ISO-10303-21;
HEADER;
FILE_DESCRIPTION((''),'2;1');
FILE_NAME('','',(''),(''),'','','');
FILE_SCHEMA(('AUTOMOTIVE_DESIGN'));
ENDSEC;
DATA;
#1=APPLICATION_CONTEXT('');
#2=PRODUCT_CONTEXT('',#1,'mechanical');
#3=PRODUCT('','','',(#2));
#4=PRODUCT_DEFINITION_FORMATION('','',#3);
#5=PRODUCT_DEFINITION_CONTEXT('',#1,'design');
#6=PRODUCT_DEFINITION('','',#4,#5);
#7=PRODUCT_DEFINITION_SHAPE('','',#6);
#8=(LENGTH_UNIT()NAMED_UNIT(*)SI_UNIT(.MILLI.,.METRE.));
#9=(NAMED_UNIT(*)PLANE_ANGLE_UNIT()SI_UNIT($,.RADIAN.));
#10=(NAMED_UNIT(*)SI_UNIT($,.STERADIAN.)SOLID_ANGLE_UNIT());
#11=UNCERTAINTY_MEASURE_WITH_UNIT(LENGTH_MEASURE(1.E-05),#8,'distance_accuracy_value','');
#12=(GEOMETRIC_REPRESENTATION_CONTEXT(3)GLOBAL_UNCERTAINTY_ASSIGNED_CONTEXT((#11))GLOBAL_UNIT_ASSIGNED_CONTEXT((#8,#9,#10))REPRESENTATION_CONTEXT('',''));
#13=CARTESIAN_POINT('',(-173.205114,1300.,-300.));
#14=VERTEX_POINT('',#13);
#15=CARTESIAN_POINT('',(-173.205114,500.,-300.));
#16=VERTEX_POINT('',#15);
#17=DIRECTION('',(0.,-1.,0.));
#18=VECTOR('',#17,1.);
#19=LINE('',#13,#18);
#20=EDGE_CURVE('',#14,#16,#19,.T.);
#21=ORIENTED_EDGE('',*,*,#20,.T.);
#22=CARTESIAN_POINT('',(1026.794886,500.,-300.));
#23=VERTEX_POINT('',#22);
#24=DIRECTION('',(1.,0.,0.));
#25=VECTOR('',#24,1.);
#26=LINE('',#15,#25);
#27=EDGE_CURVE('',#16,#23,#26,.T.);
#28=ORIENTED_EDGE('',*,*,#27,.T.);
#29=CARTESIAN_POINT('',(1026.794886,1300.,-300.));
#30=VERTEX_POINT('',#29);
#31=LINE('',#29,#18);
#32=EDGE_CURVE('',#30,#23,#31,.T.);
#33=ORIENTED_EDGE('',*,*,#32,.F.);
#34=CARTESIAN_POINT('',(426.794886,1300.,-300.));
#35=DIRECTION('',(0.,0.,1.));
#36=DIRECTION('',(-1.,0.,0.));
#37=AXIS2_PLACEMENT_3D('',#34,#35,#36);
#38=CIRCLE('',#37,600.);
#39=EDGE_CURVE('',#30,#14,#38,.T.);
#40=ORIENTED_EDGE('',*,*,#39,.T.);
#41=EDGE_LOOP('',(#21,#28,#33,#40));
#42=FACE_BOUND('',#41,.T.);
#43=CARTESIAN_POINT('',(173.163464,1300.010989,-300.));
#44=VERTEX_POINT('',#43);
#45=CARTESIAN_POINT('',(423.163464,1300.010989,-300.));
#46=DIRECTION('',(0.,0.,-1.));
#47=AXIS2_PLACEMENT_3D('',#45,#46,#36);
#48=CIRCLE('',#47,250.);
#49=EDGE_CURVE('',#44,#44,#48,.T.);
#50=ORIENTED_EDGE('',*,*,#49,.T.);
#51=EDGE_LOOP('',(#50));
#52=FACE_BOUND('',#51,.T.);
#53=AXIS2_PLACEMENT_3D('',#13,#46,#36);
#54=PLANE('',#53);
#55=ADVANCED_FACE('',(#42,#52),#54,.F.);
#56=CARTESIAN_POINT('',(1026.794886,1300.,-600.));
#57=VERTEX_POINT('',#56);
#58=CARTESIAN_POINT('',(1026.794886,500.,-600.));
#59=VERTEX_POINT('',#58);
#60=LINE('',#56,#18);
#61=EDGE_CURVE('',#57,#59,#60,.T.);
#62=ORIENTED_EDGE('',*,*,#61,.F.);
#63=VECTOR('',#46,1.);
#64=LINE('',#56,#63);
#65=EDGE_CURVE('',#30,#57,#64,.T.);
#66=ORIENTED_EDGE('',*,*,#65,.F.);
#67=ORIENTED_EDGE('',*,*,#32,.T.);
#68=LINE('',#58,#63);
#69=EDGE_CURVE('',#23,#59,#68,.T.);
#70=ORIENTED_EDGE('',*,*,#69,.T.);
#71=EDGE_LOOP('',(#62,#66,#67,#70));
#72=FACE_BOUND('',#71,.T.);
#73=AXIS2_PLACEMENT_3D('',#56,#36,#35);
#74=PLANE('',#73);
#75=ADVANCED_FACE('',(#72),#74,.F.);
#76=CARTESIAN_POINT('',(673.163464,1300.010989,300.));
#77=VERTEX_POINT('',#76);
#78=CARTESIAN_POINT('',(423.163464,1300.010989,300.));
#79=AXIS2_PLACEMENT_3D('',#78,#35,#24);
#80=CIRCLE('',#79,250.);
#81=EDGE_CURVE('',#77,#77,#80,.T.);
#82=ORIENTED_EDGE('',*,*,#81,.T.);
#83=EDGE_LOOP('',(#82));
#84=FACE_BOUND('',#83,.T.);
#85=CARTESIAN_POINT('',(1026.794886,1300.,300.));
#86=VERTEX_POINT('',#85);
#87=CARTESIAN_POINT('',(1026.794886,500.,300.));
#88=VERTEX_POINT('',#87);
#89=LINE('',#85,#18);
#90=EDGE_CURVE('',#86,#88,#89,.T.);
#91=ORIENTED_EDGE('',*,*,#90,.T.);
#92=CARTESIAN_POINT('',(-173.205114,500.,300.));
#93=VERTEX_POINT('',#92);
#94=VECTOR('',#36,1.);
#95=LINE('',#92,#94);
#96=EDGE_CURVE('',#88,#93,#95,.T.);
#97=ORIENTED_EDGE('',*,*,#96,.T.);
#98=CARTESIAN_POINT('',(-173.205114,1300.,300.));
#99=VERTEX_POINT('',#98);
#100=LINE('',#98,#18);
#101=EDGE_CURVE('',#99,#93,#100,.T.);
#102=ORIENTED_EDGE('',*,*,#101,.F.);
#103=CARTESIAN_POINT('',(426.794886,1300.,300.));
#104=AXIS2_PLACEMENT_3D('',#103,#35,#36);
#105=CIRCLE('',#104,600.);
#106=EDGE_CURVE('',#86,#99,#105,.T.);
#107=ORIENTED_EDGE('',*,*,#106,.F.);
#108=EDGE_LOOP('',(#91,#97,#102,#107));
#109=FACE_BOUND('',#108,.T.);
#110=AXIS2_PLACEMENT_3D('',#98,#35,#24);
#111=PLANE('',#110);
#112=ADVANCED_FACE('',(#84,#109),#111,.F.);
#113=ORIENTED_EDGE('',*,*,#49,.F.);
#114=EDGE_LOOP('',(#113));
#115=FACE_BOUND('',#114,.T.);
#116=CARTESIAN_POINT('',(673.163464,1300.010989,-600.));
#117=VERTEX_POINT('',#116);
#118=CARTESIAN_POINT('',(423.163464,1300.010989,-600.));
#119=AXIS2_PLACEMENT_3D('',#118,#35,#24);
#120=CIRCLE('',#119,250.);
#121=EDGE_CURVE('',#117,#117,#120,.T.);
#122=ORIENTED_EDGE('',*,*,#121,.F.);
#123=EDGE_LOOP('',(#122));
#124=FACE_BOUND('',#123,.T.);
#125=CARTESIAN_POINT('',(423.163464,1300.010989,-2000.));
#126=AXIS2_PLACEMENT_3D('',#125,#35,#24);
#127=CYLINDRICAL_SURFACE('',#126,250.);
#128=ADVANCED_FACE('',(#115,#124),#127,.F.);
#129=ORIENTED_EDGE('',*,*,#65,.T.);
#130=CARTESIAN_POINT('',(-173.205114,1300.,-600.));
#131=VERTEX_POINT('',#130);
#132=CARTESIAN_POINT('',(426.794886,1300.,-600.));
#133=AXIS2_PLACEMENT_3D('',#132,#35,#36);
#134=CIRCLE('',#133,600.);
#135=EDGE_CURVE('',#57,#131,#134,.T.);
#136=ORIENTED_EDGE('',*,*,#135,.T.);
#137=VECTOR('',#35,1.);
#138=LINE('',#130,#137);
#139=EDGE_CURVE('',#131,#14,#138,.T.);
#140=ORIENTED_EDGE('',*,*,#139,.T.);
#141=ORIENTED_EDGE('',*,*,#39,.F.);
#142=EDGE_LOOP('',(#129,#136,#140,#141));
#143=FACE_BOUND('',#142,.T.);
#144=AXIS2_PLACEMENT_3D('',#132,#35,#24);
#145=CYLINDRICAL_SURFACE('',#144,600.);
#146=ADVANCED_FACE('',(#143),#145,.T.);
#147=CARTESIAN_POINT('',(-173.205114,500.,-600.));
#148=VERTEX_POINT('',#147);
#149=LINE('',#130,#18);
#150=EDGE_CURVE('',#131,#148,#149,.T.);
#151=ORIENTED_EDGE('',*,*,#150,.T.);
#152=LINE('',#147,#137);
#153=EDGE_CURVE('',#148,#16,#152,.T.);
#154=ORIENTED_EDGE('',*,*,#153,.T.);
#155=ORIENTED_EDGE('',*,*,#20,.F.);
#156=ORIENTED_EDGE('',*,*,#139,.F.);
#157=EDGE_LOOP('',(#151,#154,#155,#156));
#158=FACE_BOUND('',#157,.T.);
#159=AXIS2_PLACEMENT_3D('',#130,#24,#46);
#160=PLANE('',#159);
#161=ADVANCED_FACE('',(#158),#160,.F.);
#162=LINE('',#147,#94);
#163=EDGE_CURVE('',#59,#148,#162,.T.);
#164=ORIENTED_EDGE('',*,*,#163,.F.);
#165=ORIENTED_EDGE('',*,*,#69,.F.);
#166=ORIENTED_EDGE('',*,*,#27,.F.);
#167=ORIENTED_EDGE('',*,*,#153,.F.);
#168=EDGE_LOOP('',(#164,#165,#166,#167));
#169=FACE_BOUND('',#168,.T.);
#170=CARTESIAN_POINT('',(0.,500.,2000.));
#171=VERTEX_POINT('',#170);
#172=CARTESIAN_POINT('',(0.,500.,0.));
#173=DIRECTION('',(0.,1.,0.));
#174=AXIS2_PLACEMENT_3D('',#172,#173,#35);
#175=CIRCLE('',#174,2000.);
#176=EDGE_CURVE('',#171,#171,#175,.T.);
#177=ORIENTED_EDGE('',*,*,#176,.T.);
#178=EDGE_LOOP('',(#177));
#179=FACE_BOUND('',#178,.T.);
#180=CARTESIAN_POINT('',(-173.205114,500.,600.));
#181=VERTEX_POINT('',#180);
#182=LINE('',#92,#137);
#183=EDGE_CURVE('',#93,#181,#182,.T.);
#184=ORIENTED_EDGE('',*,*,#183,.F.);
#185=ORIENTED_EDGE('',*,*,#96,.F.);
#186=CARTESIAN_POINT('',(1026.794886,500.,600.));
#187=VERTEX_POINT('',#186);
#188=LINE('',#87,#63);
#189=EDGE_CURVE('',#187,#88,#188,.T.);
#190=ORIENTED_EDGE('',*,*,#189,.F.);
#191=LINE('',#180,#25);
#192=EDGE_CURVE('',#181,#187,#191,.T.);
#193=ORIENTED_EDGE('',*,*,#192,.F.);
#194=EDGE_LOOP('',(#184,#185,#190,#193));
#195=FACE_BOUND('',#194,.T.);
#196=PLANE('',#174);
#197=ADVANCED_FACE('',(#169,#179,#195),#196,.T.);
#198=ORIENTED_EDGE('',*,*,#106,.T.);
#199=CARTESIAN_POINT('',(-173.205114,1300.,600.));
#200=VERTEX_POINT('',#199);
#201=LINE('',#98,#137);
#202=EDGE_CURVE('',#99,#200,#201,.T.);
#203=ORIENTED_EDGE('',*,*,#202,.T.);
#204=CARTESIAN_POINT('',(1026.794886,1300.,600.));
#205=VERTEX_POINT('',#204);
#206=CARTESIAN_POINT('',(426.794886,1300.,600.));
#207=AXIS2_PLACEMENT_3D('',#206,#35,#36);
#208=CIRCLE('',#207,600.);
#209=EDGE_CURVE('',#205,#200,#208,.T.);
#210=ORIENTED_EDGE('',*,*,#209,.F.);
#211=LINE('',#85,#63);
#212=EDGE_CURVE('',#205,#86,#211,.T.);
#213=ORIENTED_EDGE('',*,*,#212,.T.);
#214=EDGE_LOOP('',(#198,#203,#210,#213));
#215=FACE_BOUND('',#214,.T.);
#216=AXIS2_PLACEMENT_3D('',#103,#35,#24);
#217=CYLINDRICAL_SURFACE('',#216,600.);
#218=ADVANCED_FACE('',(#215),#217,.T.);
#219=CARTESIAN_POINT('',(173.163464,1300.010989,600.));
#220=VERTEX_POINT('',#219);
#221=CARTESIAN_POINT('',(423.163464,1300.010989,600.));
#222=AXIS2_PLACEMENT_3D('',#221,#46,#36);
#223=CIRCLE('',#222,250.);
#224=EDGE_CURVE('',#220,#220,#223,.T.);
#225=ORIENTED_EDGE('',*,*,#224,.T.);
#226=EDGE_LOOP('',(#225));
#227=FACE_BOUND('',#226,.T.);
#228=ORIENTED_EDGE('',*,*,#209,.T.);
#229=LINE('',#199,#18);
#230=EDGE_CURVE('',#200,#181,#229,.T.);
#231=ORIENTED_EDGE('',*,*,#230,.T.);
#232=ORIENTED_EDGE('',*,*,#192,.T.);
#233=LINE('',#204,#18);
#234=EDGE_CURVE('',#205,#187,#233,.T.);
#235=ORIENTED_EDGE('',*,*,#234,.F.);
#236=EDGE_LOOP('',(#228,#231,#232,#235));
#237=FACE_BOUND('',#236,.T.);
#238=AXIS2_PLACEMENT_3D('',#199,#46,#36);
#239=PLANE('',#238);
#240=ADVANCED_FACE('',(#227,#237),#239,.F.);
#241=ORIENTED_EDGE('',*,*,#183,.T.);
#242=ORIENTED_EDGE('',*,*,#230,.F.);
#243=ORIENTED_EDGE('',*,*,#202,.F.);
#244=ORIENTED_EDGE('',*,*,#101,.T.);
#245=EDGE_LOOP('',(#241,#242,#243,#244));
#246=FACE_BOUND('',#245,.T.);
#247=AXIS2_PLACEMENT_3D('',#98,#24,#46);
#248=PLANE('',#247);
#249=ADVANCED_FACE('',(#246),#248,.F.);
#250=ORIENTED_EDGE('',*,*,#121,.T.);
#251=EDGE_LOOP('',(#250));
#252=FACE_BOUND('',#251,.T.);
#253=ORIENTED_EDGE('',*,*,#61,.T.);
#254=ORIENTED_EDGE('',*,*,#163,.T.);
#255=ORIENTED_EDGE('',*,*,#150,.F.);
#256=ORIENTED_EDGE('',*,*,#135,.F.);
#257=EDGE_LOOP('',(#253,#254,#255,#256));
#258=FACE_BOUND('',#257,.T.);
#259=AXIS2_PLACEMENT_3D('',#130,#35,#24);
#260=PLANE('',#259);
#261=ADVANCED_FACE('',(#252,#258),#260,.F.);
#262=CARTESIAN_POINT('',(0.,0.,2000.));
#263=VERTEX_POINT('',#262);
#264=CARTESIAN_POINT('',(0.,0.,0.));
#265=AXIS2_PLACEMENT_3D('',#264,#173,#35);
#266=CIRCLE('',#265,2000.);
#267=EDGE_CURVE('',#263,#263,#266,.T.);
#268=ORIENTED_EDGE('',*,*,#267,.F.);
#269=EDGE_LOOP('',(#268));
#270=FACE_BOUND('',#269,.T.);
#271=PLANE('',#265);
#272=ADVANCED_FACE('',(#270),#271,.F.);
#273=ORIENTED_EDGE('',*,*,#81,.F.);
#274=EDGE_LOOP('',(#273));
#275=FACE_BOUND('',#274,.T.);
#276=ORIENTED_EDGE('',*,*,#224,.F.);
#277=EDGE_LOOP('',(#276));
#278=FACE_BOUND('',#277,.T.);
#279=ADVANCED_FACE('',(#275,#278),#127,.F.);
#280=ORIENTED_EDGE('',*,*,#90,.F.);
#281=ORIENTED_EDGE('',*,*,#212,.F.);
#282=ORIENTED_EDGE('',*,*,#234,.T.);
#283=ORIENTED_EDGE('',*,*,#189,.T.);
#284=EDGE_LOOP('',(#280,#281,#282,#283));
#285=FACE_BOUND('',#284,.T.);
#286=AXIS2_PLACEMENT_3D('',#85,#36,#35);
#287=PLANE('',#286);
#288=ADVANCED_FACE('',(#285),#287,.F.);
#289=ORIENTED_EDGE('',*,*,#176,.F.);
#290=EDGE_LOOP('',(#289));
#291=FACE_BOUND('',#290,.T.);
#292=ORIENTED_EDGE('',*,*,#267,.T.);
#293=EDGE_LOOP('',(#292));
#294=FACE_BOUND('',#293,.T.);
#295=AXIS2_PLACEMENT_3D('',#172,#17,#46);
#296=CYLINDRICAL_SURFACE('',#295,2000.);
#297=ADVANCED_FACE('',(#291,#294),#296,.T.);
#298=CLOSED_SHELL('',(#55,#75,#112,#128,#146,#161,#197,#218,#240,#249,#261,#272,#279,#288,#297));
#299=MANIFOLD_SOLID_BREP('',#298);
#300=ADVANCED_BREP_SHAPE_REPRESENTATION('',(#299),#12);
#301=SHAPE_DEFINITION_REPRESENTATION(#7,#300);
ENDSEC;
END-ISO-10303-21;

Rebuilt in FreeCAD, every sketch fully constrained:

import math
import FreeCAD as App
import Part
import Sketcher
Q = App.Units.Quantity

doc = App.newDocument("Part")
body = doc.addObject("PartDesign::Body", "Body")

# Sketch on XZ plane
sketch1 = body.newObject("Sketcher::SketchObject", "Sketch")
sketch1.AttachmentSupport = (doc.getObject("XZ_Plane"), [""])
sketch1.MapMode = "FlatFace"
sketch1.addGeometry(Part.Circle(App.Vector(0, 0, 0), App.Vector(0, 0, 1), 2000), False)
sketch1.addConstraint([
    Sketcher.Constraint("Coincident", 0, 3, -1, 1),
    Sketcher.Constraint("Diameter", 0, Q("4000 mm")),
])
pad1 = body.newObject("PartDesign::Pad", "Pad")
pad1.Profile = sketch1
pad1.Length = 500
pad1.Reversed = True

# Sketch on XZ plane
sketch2 = body.newObject("Sketcher::SketchObject", "Sketch001")
sketch2.AttachmentSupport = (doc.getObject("XZ_Plane"), [""])
sketch2.MapMode = "FlatFace"
sketch2.AttachmentOffset = App.Placement(App.Vector(0, 0, -500), App.Rotation())
sketch2.addGeometry([
    Part.LineSegment(App.Vector(-173, -600, 0), App.Vector(-173, -300, 0)),
    Part.LineSegment(App.Vector(-173, -300, 0), App.Vector(1027, -300, 0)),
    Part.LineSegment(App.Vector(1027, -300, 0), App.Vector(1027, -600, 0)),
    Part.LineSegment(App.Vector(1027, -600, 0), App.Vector(-173, -600, 0)),
], False)
sketch2.addConstraint([
    Sketcher.Constraint("Coincident", 0, 2, 1, 1),
    Sketcher.Constraint("Coincident", 1, 2, 2, 1),
    Sketcher.Constraint("Coincident", 2, 2, 3, 1),
    Sketcher.Constraint("Coincident", 3, 2, 0, 1),
    Sketcher.Constraint("Vertical", 0),
    Sketcher.Constraint("Horizontal", 1),
    Sketcher.Constraint("Vertical", 2),
    Sketcher.Constraint("Horizontal", 3),
    Sketcher.Constraint("DistanceX", 1, 1, 1, 2, Q("1200 mm")),
    Sketcher.Constraint("DistanceY", 0, 1, 0, 2, Q("300 mm")),
    Sketcher.Constraint("DistanceY", 0, 2, -1, 1, Q("300 mm")),
    Sketcher.Constraint("DistanceX", 0, 2, -1, 1, Q("173.205114 mm")),
])
pad2 = body.newObject("PartDesign::Pad", "Pad001")
pad2.Profile = sketch2
pad2.Length = 800
pad2.Reversed = True

# Sketch on XY plane
sketch3 = body.newObject("Sketcher::SketchObject", "Sketch002")
sketch3.AttachmentSupport = (doc.getObject("XY_Plane"), [""])
sketch3.MapMode = "FlatFace"
sketch3.AttachmentOffset = App.Placement(App.Vector(0, 0, -300), App.Rotation())
sketch3.addGeometry([
    Part.LineSegment(App.Vector(-173, 500, 0), App.Vector(1027, 500, 0)),
    Part.LineSegment(App.Vector(1027, 500, 0), App.Vector(1027, 1300, 0)),
    Part.ArcOfCircle(Part.Circle(App.Vector(427, 1300, 0), App.Vector(0, 0, 1), 600), math.radians(0), math.radians(180)),
    Part.LineSegment(App.Vector(-173, 1300, 0), App.Vector(-173, 500, 0)),
], False)
sketch3.addConstraint([
    Sketcher.Constraint("Coincident", 0, 2, 1, 1),
    Sketcher.Constraint("Tangent", 1, 2, 2, 1),
    Sketcher.Constraint("Tangent", 2, 2, 3, 1),
    Sketcher.Constraint("Coincident", 3, 2, 0, 1),
    Sketcher.Constraint("Horizontal", 0),
    Sketcher.Constraint("Vertical", 1),
    Sketcher.Constraint("Vertical", 3),
    Sketcher.Constraint("Radius", 2, Q("600 mm")),
    Sketcher.Constraint("DistanceY", 1, 1, 1, 2, Q("800 mm")),
    Sketcher.Constraint("DistanceY", -1, 1, 2, 3, Q("1300 mm")),
    Sketcher.Constraint("DistanceX", -1, 1, 2, 3, Q("426.794886 mm")),
])
pad3 = body.newObject("PartDesign::Pad", "Pad002")
pad3.Profile = sketch3
pad3.Length = 300
pad3.Reversed = True

# Sketch on XZ plane
sketch4 = body.newObject("Sketcher::SketchObject", "Sketch003")
sketch4.AttachmentSupport = (doc.getObject("XZ_Plane"), [""])
sketch4.MapMode = "FlatFace"
sketch4.AttachmentOffset = App.Placement(App.Vector(0, 0, -500), App.Rotation())
sketch4.addGeometry([
    Part.LineSegment(App.Vector(-173, 300, 0), App.Vector(-173, 600, 0)),
    Part.LineSegment(App.Vector(-173, 600, 0), App.Vector(1027, 600, 0)),
    Part.LineSegment(App.Vector(1027, 600, 0), App.Vector(1027, 300, 0)),
    Part.LineSegment(App.Vector(1027, 300, 0), App.Vector(-173, 300, 0)),
], False)
sketch4.addConstraint([
    Sketcher.Constraint("Coincident", 0, 2, 1, 1),
    Sketcher.Constraint("Coincident", 1, 2, 2, 1),
    Sketcher.Constraint("Coincident", 2, 2, 3, 1),
    Sketcher.Constraint("Coincident", 3, 2, 0, 1),
    Sketcher.Constraint("Vertical", 0),
    Sketcher.Constraint("Horizontal", 1),
    Sketcher.Constraint("Vertical", 2),
    Sketcher.Constraint("Horizontal", 3),
    Sketcher.Constraint("DistanceX", 1, 1, 1, 2, Q("1200 mm")),
    Sketcher.Constraint("DistanceY", 0, 1, 0, 2, Q("300 mm")),
    Sketcher.Constraint("DistanceY", -1, 1, 0, 2, Q("600 mm")),
    Sketcher.Constraint("DistanceX", 0, 2, -1, 1, Q("173.205114 mm")),
])
pad4 = body.newObject("PartDesign::Pad", "Pad003")
pad4.Profile = sketch4
pad4.Length = 800
pad4.Reversed = True

# Sketch on XY plane
sketch5 = body.newObject("Sketcher::SketchObject", "Sketch004")
sketch5.AttachmentSupport = (doc.getObject("XY_Plane"), [""])
sketch5.MapMode = "FlatFace"
sketch5.AttachmentOffset = App.Placement(App.Vector(0, 0, 600), App.Rotation())
sketch5.addGeometry([
    Part.LineSegment(App.Vector(-173, 1300, 0), App.Vector(1027, 1300, 0)),
    Part.ArcOfCircle(Part.Circle(App.Vector(427, 1300, 0), App.Vector(0, 0, 1), 600), math.radians(0), math.radians(180)),
], False)
sketch5.addConstraint([
    Sketcher.Constraint("Coincident", 0, 1, 1, 2),
    Sketcher.Constraint("Coincident", 1, 1, 0, 2),
    Sketcher.Constraint("Horizontal", 0),
    Sketcher.Constraint("Horizontal", 1, 3, 0, 1),
    Sketcher.Constraint("Radius", 1, Q("600 mm")),
    Sketcher.Constraint("DistanceY", -1, 1, 1, 3, Q("1300 mm")),
    Sketcher.Constraint("DistanceX", -1, 1, 1, 3, Q("426.794886 mm")),
])
pad5 = body.newObject("PartDesign::Pad", "Pad004")
pad5.Profile = sketch5
pad5.Length = 300
pad5.Reversed = True

# Sketch on XY plane
sketch6 = body.newObject("Sketcher::SketchObject", "Sketch005")
sketch6.AttachmentSupport = (doc.getObject("XY_Plane"), [""])
sketch6.MapMode = "FlatFace"
sketch6.AttachmentOffset = App.Placement(App.Vector(0, 0, 600), App.Rotation())
sketch6.addGeometry(Part.Circle(App.Vector(423, 1300, 0), App.Vector(0, 0, 1), 250), False)
sketch6.addConstraint([
    Sketcher.Constraint("Diameter", 0, Q("500 mm")),
    Sketcher.Constraint("DistanceY", -1, 1, 0, 3, Q("1300.010989 mm")),
    Sketcher.Constraint("DistanceX", -1, 1, 0, 3, Q("423.163464 mm")),
])
pocket1 = body.newObject("PartDesign::Pocket", "Pocket")
pocket1.Profile = sketch6
pocket1.Type = "ThroughAll"
pocket1.Midplane = True

doc.recompute()
